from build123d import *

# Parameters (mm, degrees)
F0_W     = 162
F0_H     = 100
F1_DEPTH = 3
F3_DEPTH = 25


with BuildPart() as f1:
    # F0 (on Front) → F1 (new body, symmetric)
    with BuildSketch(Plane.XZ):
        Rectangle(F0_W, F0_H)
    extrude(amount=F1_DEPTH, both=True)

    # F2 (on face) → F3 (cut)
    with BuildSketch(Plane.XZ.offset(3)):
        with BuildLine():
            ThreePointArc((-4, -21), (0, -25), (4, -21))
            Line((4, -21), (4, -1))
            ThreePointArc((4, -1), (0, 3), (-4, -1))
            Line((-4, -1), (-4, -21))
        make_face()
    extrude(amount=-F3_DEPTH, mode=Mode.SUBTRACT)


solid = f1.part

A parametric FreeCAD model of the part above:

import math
import FreeCAD as App
import Part
import Sketcher

doc = App.newDocument("Part")
body = doc.addObject("PartDesign::Body", "Body")

sketch1 = body.newObject("Sketcher::SketchObject", "Sketch")
sketch1.AttachmentSupport = (doc.getObject("XZ_Plane"), [""])
sketch1.MapMode = "FlatFace"
sketch1.addGeometry([
    Part.LineSegment(App.Vector(-81, 50, 0), App.Vector(-81, -50, 0)),
    Part.LineSegment(App.Vector(-81, -50, 0), App.Vector(81, -50, 0)),
    Part.LineSegment(App.Vector(81, -50, 0), App.Vector(81, 50, 0)),
    Part.LineSegment(App.Vector(81, 50, 0), App.Vector(-81, 50, 0)),
], False)
sketch1.addConstraint([
    Sketcher.Constraint("Coincident", 0, 2, 1, 1),
    Sketcher.Constraint("Coincident", 1, 2, 2, 1),
    Sketcher.Constraint("Coincident", 2, 2, 3, 1),
    Sketcher.Constraint("Coincident", 3, 2, 0, 1),
    Sketcher.Constraint("Vertical", 0),
    Sketcher.Constraint("Horizontal", 1),
    Sketcher.Constraint("Vertical", 2),
    Sketcher.Constraint("Horizontal", 3),
    Sketcher.Constraint("Symmetric", 0, 2, 2, 2, -1, 1),
    Sketcher.Constraint("DistanceX", 1, 1, 1, 2, 162.0),
    Sketcher.Constraint("DistanceY", 0, 2, 0, 1, 100.0),
])
pad1 = body.newObject("PartDesign::Pad", "Pad")
pad1.Profile = sketch1
pad1.Length = 6
pad1.Midplane = True

sketch2 = body.newObject("Sketcher::SketchObject", "Sketch001")
sketch2.AttachmentSupport = (doc.getObject("XZ_Plane"), [""])
sketch2.MapMode = "FlatFace"
sketch2.AttachmentOffset = App.Placement(App.Vector(0, 0, 3), App.Rotation())
sketch2.addGeometry([
    Part.ArcOfCircle(Part.Circle(App.Vector(0, -21, 0), App.Vector(0, 0, 1), 4), math.radians(180), math.radians(360)),
    Part.LineSegment(App.Vector(4, -21, 0), App.Vector(4, -1, 0)),
    Part.ArcOfCircle(Part.Circle(App.Vector(0, -1, 0), App.Vector(0, 0, 1), 4), math.radians(0), math.radians(180)),
    Part.LineSegment(App.Vector(-4, -1, 0), App.Vector(-4, -21, 0)),
], False)
sketch2.addConstraint([
    Sketcher.Constraint("Tangent", 0, 2, 1, 1),
    Sketcher.Constraint("Tangent", 1, 2, 2, 1),
    Sketcher.Constraint("Tangent", 2, 2, 3, 1),
    Sketcher.Constraint("Tangent", 3, 2, 0, 1),
    Sketcher.Constraint("Vertical", 1),
    Sketcher.Constraint("Vertical", 3),
    Sketcher.Constraint("PointOnObject", 0, 3, -2),
    Sketcher.Constraint("Radius", 0, 4.0),
    Sketcher.Constraint("DistanceY", 1, 1, 1, 2, 20.0),
    Sketcher.Constraint("DistanceY", 0, 3, -1, 1, 21.0),
])
pocket1 = body.newObject("PartDesign::Pocket", "Pocket")
pocket1.Profile = sketch2
pocket1.Length = 25

doc.recompute()
